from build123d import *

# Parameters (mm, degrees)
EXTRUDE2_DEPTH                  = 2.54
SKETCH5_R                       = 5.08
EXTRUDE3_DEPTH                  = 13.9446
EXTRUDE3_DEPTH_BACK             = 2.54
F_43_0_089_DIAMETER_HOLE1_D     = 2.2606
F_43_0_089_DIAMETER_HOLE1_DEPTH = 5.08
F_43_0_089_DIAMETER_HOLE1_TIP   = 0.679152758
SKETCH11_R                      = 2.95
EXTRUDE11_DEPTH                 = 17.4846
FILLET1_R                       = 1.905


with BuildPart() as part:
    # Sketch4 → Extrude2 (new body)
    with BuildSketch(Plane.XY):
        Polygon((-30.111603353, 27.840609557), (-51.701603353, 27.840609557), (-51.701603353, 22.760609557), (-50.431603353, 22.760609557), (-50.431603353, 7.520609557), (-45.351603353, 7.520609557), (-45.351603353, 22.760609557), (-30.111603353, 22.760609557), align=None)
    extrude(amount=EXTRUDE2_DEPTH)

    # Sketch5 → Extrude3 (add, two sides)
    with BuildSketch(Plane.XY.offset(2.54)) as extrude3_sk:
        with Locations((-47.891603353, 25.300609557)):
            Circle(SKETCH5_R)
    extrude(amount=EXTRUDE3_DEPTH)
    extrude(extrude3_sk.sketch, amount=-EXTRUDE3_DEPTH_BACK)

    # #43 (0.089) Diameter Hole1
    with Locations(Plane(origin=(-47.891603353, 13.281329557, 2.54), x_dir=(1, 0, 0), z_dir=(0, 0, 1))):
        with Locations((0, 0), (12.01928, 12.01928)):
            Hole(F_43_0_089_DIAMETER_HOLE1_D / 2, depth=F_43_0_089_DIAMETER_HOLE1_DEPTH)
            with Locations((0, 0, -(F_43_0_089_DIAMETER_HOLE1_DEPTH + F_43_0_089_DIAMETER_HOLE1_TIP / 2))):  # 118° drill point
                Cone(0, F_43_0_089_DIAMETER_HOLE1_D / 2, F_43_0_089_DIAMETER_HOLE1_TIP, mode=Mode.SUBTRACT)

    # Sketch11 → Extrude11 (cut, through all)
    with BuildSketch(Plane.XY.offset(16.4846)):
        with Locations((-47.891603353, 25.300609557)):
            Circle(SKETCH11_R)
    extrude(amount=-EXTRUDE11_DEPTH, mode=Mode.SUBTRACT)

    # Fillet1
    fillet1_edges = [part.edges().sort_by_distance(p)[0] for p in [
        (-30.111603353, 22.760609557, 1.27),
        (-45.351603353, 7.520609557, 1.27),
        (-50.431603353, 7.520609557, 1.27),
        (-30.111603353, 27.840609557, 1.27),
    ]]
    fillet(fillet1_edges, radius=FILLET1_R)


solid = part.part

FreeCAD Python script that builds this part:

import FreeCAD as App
import Part
import Sketcher
from FreeCAD import Vector
Q = App.Units.Quantity


def edges_at(feature, points):
    """Names of the edges that pass closest to the given points."""
    edges = feature.Shape.Edges
    near = lambda p: min(range(len(edges)), key=lambda i: edges[i].distToShape(Part.Vertex(*p))[0])
    return sorted({f"Edge{near(p) + 1}" for p in points})

doc = App.newDocument("Part")
body = doc.addObject("PartDesign::Body", "Body")

sketch1 = body.newObject("Sketcher::SketchObject", "Sketch")
sketch1.AttachmentSupport = (doc.getObject("XY_Plane"), [""])
sketch1.MapMode = "FlatFace"
sketch1.addGeometry([
    Part.LineSegment(Vector(-30.111603, 27.84061, 0), Vector(-51.701603, 27.84061, 0)),
    Part.LineSegment(Vector(-51.701603, 27.84061, 0), Vector(-51.701603, 22.76061, 0)),
    Part.LineSegment(Vector(-51.701603, 22.76061, 0), Vector(-50.431603, 22.76061, 0)),
    Part.LineSegment(Vector(-50.431603, 22.76061, 0), Vector(-50.431603, 7.52061, 0)),
    Part.LineSegment(Vector(-50.431603, 7.52061, 0), Vector(-45.351603, 7.52061, 0)),
    Part.LineSegment(Vector(-45.351603, 7.52061, 0), Vector(-45.351603, 22.76061, 0)),
    Part.LineSegment(Vector(-45.351603, 22.76061, 0), Vector(-30.111603, 22.76061, 0)),
    Part.LineSegment(Vector(-30.111603, 22.76061, 0), Vector(-30.111603, 27.84061, 0)),
], False)
sketch1.addConstraint([
    Sketcher.Constraint("Coincident", 0, 2, 1, 1),
    Sketcher.Constraint("Coincident", 1, 2, 2, 1),
    Sketcher.Constraint("Coincident", 2, 2, 3, 1),
    Sketcher.Constraint("Coincident", 3, 2, 4, 1),
    Sketcher.Constraint("Coincident", 4, 2, 5, 1),
    Sketcher.Constraint("Coincident", 5, 2, 6, 1),
    Sketcher.Constraint("Coincident", 6, 2, 7, 1),
    Sketcher.Constraint("Coincident", 7, 2, 0, 1),
    Sketcher.Constraint("Horizontal", 0),
    Sketcher.Constraint("Vertical", 1),
    Sketcher.Constraint("Horizontal", 2),
    Sketcher.Constraint("Vertical", 3),
    Sketcher.Constraint("Horizontal", 4),
    Sketcher.Constraint("Vertical", 5),
    Sketcher.Constraint("Horizontal", 6),
    Sketcher.Constraint("Vertical", 7),
    Sketcher.Constraint("Horizontal", 2, 2, 5, 2),
    Sketcher.Constraint("Equal", 4, 1),
    Sketcher.Constraint("Equal", 6, 3),
    Sketcher.Constraint("DistanceX", 4, 1, 4, 2, Q("0.2 in")),
    Sketcher.Constraint("DistanceX", 6, 1, 6, 2, Q("0.6 in")),
    Sketcher.Constraint("DistanceX", 0, 2, 0, 1, Q("0.85 in")),
    Sketcher.Constraint("DistanceY", -1, 1, 0, 2, 27.84061),
    Sketcher.Constraint("DistanceX", 0, 2, -1, 1, 51.701603),
])
pad1 = body.newObject("PartDesign::Pad", "Pad")
pad1.Profile = sketch1
pad1.Length = Q("0.1 in")

sketch2 = body.newObject("Sketcher::SketchObject", "Sketch001")
sketch2.AttachmentSupport = (doc.getObject("XY_Plane"), [""])
sketch2.MapMode = "FlatFace"
sketch2.AttachmentOffset = App.Placement(Vector(0, 0, 0.1 * 25.4), App.Rotation())
sketch2.addGeometry(Part.Circle(Vector(-47.891603, 25.30061, 0), Vector(0, 0, 1), 5.08), False)
sketch2.addConstraint([
    Sketcher.Constraint("Diameter", 0, Q("0.4 in")),
    Sketcher.Constraint("DistanceY", -1, 1, 0, 3, 25.30061),
    Sketcher.Constraint("DistanceX", 0, 3, -1, 1, 47.891603),
])
pad2 = body.newObject("PartDesign::Pad", "Pad001")
pad2.Profile = sketch2
pad2.Type = "TwoLengths"
pad2.Length = Q("0.549 in")
pad2.Length2 = Q("0.1 in")

sketch3 = body.newObject("Sketcher::SketchObject", "Sketch002")
sketch3.AttachmentSupport = (doc.getObject("XY_Plane"), [""])
sketch3.MapMode = "FlatFace"
sketch3.AttachmentOffset = App.Placement(Vector(0, 0, 0.1 * 25.4), App.Rotation())
sketch3.addGeometry([
    Part.Circle(Vector(-47.891603, 13.28133, 0), Vector(0, 0, 1), 1.1303),
    Part.Circle(Vector(-35.872323, 25.30061, 0), Vector(0, 0, 1), 1.1303),
], False)
sketch3.addConstraint([
    Sketcher.Constraint("Equal", 0, 1),
    Sketcher.Constraint("Diameter", 0, Q("0.089 in")),
    Sketcher.Constraint("DistanceX", 0, 3, 1, 3, Q("0.4732 in")),
    Sketcher.Constraint("DistanceY", 0, 3, 1, 3, Q("0.4732 in")),
    Sketcher.Constraint("DistanceY", -1, 1, 0, 3, 13.28133),
    Sketcher.Constraint("DistanceX", 0, 3, -1, 1, 47.891603),
])
doc.recompute()
hole = body.newObject("PartDesign::Hole", "Hole")
hole.Profile = sketch3
hole.ThreadType = "None"
hole.Diameter = Q("0.089 in")
hole.DepthType = "Dimension"
hole.Depth = Q("0.2 in")
hole.DrillPoint = "Angled"
hole.DrillPointAngle = 118

sketch4 = body.newObject("Sketcher::SketchObject", "Sketch003")
sketch4.AttachmentSupport = (doc.getObject("XY_Plane"), [""])
sketch4.MapMode = "FlatFace"
sketch4.AttachmentOffset = App.Placement(Vector(0, 0, 0.649 * 25.4), App.Rotation())
sketch4.addGeometry(Part.Circle(Vector(-47.891603, 25.30061, 0), Vector(0, 0, 1), 2.95), False)
sketch4.addConstraint([
    Sketcher.Constraint("Diameter", 0, 5.9),
    Sketcher.Constraint("DistanceY", -1, 1, 0, 3, 25.30061),
    Sketcher.Constraint("DistanceX", 0, 3, -1, 1, 47.891603),
])
pocket1 = body.newObject("PartDesign::Pocket", "Pocket")
pocket1.Profile = sketch4
pocket1.Type = "ThroughAll"
doc.recompute()

fillet = body.newObject("PartDesign::Fillet", "Fillet")
fillet.Base = (pocket1, edges_at(pocket1, [
    (-30.112, 22.761, 1.27),
    (-45.352, 7.521, 1.27),
    (-50.432, 7.521, 1.27),
    (-30.112, 27.841, 1.27),
]))
fillet.Radius = Q("0.075 in")

doc.recompute()
